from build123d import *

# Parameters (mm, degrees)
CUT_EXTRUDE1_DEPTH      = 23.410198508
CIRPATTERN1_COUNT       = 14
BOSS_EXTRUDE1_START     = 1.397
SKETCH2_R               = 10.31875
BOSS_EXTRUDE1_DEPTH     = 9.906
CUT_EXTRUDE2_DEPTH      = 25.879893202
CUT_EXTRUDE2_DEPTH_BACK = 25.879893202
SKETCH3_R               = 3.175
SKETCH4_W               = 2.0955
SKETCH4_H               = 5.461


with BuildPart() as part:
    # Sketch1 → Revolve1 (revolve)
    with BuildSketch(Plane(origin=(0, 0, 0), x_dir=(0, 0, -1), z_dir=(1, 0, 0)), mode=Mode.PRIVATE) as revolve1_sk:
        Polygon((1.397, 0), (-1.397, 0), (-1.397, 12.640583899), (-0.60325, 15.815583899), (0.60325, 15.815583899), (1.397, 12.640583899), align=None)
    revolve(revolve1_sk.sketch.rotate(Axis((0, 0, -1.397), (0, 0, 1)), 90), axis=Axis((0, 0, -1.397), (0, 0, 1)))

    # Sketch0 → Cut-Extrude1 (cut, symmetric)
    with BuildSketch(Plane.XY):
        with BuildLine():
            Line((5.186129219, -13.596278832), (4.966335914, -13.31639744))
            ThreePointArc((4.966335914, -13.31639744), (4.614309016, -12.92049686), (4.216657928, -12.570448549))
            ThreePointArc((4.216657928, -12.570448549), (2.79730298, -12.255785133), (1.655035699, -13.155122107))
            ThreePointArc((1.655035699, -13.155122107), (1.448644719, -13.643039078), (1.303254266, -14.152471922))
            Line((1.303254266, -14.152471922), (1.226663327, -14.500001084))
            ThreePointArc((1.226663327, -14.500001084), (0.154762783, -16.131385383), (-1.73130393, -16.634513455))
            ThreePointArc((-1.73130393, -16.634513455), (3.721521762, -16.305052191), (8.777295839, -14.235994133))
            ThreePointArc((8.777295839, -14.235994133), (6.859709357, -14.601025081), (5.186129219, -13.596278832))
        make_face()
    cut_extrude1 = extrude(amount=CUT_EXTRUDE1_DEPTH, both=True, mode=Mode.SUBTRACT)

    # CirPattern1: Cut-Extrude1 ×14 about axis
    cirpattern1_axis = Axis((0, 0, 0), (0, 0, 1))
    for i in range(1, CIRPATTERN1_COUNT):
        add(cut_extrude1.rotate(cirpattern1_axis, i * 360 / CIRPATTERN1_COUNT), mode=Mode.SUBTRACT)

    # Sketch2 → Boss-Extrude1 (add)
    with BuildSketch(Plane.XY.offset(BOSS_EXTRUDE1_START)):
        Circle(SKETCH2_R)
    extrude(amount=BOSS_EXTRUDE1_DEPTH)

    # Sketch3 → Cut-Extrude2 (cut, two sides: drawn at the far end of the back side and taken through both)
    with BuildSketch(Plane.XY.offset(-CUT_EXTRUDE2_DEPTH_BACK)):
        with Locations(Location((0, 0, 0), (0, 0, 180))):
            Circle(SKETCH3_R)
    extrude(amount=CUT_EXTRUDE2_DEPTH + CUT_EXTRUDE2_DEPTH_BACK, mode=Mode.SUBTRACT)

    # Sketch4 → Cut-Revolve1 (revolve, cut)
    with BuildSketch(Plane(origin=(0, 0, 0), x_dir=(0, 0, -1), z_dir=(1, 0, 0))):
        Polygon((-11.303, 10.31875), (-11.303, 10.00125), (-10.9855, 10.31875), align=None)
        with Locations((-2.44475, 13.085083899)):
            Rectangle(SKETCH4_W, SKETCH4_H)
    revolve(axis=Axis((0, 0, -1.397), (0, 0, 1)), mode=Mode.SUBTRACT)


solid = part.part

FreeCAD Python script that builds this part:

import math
import FreeCAD as App
import Part
import Sketcher
Q = App.Units.Quantity


def add_polygon(sketch, points):
    """Adds a closed chain of lines whose ends are joined by coincident constraints."""
    first, n = sketch.GeometryCount, len(points)
    for a, b in zip(points, points[1:] + points[:1]):
        sketch.addGeometry(Part.LineSegment(App.Vector(*a, 0), App.Vector(*b, 0)), False)
    for i in range(n):
        sketch.addConstraint(Sketcher.Constraint("Coincident", first + i, 2, first + (i + 1) % n, 1))

doc = App.newDocument("Part")
body = doc.addObject("PartDesign::Body", "Body")

sketch1 = body.newObject("Sketcher::SketchObject", "Sketch")
sketch1.AttachmentSupport = (doc.getObject("YZ_Plane"), [""])
sketch1.MapMode = "FlatFace"
add_polygon(sketch1, [(0, 1.4), (0, -1.4), (12.6, -1.4), (15.8, -0.6), (15.8, 0.6), (12.6, 1.4)])
sketch1.addConstraint([
    Sketcher.Constraint("Vertical", 0),
    Sketcher.Constraint("Horizontal", 1),
    Sketcher.Constraint("Vertical", 3),
    Sketcher.Constraint("Horizontal", 5),
    Sketcher.Constraint("Symmetric", 0, 2, 5, 2, -1, 1),
    Sketcher.Constraint("Vertical", 1, 2, 4, 2),
    Sketcher.Constraint("Equal", 2, 4),
    Sketcher.Constraint("DistanceY", 0, 2, 0, 1, Q("0.11 in")),
    Sketcher.Constraint("DistanceY", 3, 1, 3, 2, Q("0.0475 in")),
    Sketcher.Constraint("DistanceX", 1, 2, 2, 2, Q("0.125 in")),
    Sketcher.Constraint("DistanceX", 1, 1, 1, 2, 12.640584),
])
revolution = body.newObject("PartDesign::Revolution", "Revolution")
revolution.Profile = sketch1
revolution.ReferenceAxis = (sketch1, ["V_Axis"])
revolution.Angle = 360

sketch2 = body.newObject("Sketcher::SketchObject", "Sketch001")
sketch2.AttachmentSupport = (doc.getObject("XY_Plane"), [""])
sketch2.MapMode = "FlatFace"
sketch2.addGeometry([
    Part.LineSegment(App.Vector(5.19, -13.6, 0), App.Vector(4.97, -13.32, 0)),
    Part.ArcOfCircle(Part.Circle(App.Vector(1.55, -16, 0), App.Vector(0, 0, 1), 4.34), math.radians(38.14), math.radians(52.14)),
    Part.ArcOfCircle(Part.Circle(App.Vector(3.17, -13.91, 0), App.Vector(0, 0, 1), 1.7), math.radians(52), math.radians(154)),
    Part.ArcOfCircle(Part.Circle(App.Vector(5.54, -15.09, 0), App.Vector(0, 0, 1), 4.34), math.radians(153.57), math.radians(167.57)),
    Part.LineSegment(App.Vector(1.3, -14.15, 0), App.Vector(1.23, -14.5, 0)),
    Part.ArcOfCircle(Part.Circle(App.Vector(-1.45, -13.91, 0), App.Vector(0, 0, 1), 2.74), math.radians(-96), math.radians(-12)),
    Part.ArcOfCircle(Part.Circle(App.Vector(0, 0, 0), App.Vector(0, 0, 1), 16.72), math.radians(-96), math.radians(-58)),
    Part.ArcOfCircle(Part.Circle(App.Vector(7.34, -11.9, 0), App.Vector(0, 0, 1), 2.74), math.radians(-142), math.radians(-58)),
], False)
sketch2.addConstraint([
    Sketcher.Constraint("Tangent", 0, 2, 1, 1),
    Sketcher.Constraint("Tangent", 1, 2, 2, 1),
    Sketcher.Constraint("Tangent", 2, 2, 3, 1),
    Sketcher.Constraint("Tangent", 3, 2, 4, 1),
    Sketcher.Constraint("Tangent", 4, 2, 5, 2),
    Sketcher.Constraint("Tangent", 5, 1, 6, 1),
    Sketcher.Constraint("Tangent", 6, 2, 7, 2),
    Sketcher.Constraint("Tangent", 7, 1, 0, 1),
    Sketcher.Constraint("Coincident", 6, 3, -1, 1),
    Sketcher.Constraint("Equal", 1, 3),
    Sketcher.Constraint("Equal", 5, 7),
    Sketcher.Constraint("Horizontal", 2, 3, 5, 3),
    Sketcher.Constraint("Equal", 0, 4),
    Sketcher.Constraint("DistanceX", -1, 1, 2, 3, Q("0.125 in")),
    Sketcher.Constraint("DistanceX", 5, 3, -1, 1, Q("0.057 in")),
    Sketcher.Constraint("Radius", 1, 4.338955),
    Sketcher.Constraint("Radius", 2, 1.697355),
    Sketcher.Constraint("Radius", 5, 2.738643),
    Sketcher.Constraint("Radius", 6, 16.724367),
    Sketcher.Constraint("DistanceX", -1, 1, 7, 3, 7.339999),
    Sketcher.Constraint("DistanceY", 4, 2, -1, 1, 14.500001),
])
pocket1 = body.newObject("PartDesign::Pocket", "Pocket")
pocket1.Profile = sketch2
pocket1.Length = 46.820397
pocket1.Midplane = True
doc.recompute()

polarpattern = body.newObject("PartDesign::PolarPattern", "PolarPattern")
polarpattern.Originals = [pocket1]
polarpattern.Axis = (doc.getObject("Z_Axis"), [""])
polarpattern.Angle = 360
polarpattern.Occurrences = 14
body.Tip = polarpattern

sketch3 = body.newObject("Sketcher::SketchObject", "Sketch002")
sketch3.AttachmentSupport = (doc.getObject("XY_Plane"), [""])
sketch3.MapMode = "FlatFace"
sketch3.AttachmentOffset = App.Placement(App.Vector(0, 0, 0.055 * 25.4), App.Rotation())
sketch3.addGeometry(Part.Circle(App.Vector(0, 0, 0), App.Vector(0, 0, 1), 10), False)
sketch3.addConstraint([
    Sketcher.Constraint("Coincident", 0, 3, -1, 1),
    Sketcher.Constraint("Diameter", 0, Q("0.8125 in")),
])
pad1 = body.newObject("PartDesign::Pad", "Pad")
pad1.Profile = sketch3
pad1.Length = Q("0.39 in")

sketch4 = body.newObject("Sketcher::SketchObject", "Sketch003")
sketch4.AttachmentSupport = (doc.getObject("XY_Plane"), [""])
sketch4.MapMode = "FlatFace"
sketch4.addGeometry(Part.Circle(App.Vector(0, 0, 0), App.Vector(0, 0, 1), 3.2), False)
sketch4.addConstraint([
    Sketcher.Constraint("Coincident", 0, 3, -1, 1),
    Sketcher.Constraint("Diameter", 0, Q("0.25 in")),
])
pocket2 = body.newObject("PartDesign::Pocket", "Pocket001")
pocket2.Profile = sketch4
pocket2.Type = "ThroughAll"
pocket2.Midplane = True

sketch5 = body.newObject("Sketcher::SketchObject", "Sketch004")
sketch5.AttachmentSupport = (doc.getObject("YZ_Plane"), [""])
sketch5.MapMode = "FlatFace"
add_polygon(sketch5, [(10.32, 11.3), (10, 11.3), (10.32, 10.99)])
add_polygon(sketch5, [(15.82, 3.49), (10.35, 3.49), (10.35, 1.4), (15.82, 1.4)])
sketch5.addConstraint([
    Sketcher.Constraint("Horizontal", 0),
    Sketcher.Constraint("Vertical", 2),
    Sketcher.Constraint("Horizontal", 3),
    Sketcher.Constraint("Vertical", 4),
    Sketcher.Constraint("Horizontal", 5),
    Sketcher.Constraint("Vertical", 6),
    Sketcher.Constraint("Equal", 0, 2),
    Sketcher.Constraint("DistanceX", 3, 2, 3, 1, Q("0.215 in")),
    Sketcher.Constraint("DistanceY", 4, 2, 2, 2, Q("0.39 in")),
    Sketcher.Constraint("DistanceX", 0, 2, 0, 1, Q("0.0125 in")),
    Sketcher.Constraint("DistanceY", 4, 2, 4, 1, Q("0.0825 in")),
    Sketcher.Constraint("DistanceY", -1, 1, 0, 2, Q("0.445 in")),
    Sketcher.Constraint("DistanceX", -1, 1, 1, 2, Q("0.40625 in")),
    Sketcher.Constraint("DistanceX", -1, 1, 3, 2, 10.354584),
])
groove = body.newObject("PartDesign::Groove", "Groove")
groove.Profile = sketch5
groove.ReferenceAxis = (sketch5, ["V_Axis"])
groove.Angle = 360

doc.recompute()
